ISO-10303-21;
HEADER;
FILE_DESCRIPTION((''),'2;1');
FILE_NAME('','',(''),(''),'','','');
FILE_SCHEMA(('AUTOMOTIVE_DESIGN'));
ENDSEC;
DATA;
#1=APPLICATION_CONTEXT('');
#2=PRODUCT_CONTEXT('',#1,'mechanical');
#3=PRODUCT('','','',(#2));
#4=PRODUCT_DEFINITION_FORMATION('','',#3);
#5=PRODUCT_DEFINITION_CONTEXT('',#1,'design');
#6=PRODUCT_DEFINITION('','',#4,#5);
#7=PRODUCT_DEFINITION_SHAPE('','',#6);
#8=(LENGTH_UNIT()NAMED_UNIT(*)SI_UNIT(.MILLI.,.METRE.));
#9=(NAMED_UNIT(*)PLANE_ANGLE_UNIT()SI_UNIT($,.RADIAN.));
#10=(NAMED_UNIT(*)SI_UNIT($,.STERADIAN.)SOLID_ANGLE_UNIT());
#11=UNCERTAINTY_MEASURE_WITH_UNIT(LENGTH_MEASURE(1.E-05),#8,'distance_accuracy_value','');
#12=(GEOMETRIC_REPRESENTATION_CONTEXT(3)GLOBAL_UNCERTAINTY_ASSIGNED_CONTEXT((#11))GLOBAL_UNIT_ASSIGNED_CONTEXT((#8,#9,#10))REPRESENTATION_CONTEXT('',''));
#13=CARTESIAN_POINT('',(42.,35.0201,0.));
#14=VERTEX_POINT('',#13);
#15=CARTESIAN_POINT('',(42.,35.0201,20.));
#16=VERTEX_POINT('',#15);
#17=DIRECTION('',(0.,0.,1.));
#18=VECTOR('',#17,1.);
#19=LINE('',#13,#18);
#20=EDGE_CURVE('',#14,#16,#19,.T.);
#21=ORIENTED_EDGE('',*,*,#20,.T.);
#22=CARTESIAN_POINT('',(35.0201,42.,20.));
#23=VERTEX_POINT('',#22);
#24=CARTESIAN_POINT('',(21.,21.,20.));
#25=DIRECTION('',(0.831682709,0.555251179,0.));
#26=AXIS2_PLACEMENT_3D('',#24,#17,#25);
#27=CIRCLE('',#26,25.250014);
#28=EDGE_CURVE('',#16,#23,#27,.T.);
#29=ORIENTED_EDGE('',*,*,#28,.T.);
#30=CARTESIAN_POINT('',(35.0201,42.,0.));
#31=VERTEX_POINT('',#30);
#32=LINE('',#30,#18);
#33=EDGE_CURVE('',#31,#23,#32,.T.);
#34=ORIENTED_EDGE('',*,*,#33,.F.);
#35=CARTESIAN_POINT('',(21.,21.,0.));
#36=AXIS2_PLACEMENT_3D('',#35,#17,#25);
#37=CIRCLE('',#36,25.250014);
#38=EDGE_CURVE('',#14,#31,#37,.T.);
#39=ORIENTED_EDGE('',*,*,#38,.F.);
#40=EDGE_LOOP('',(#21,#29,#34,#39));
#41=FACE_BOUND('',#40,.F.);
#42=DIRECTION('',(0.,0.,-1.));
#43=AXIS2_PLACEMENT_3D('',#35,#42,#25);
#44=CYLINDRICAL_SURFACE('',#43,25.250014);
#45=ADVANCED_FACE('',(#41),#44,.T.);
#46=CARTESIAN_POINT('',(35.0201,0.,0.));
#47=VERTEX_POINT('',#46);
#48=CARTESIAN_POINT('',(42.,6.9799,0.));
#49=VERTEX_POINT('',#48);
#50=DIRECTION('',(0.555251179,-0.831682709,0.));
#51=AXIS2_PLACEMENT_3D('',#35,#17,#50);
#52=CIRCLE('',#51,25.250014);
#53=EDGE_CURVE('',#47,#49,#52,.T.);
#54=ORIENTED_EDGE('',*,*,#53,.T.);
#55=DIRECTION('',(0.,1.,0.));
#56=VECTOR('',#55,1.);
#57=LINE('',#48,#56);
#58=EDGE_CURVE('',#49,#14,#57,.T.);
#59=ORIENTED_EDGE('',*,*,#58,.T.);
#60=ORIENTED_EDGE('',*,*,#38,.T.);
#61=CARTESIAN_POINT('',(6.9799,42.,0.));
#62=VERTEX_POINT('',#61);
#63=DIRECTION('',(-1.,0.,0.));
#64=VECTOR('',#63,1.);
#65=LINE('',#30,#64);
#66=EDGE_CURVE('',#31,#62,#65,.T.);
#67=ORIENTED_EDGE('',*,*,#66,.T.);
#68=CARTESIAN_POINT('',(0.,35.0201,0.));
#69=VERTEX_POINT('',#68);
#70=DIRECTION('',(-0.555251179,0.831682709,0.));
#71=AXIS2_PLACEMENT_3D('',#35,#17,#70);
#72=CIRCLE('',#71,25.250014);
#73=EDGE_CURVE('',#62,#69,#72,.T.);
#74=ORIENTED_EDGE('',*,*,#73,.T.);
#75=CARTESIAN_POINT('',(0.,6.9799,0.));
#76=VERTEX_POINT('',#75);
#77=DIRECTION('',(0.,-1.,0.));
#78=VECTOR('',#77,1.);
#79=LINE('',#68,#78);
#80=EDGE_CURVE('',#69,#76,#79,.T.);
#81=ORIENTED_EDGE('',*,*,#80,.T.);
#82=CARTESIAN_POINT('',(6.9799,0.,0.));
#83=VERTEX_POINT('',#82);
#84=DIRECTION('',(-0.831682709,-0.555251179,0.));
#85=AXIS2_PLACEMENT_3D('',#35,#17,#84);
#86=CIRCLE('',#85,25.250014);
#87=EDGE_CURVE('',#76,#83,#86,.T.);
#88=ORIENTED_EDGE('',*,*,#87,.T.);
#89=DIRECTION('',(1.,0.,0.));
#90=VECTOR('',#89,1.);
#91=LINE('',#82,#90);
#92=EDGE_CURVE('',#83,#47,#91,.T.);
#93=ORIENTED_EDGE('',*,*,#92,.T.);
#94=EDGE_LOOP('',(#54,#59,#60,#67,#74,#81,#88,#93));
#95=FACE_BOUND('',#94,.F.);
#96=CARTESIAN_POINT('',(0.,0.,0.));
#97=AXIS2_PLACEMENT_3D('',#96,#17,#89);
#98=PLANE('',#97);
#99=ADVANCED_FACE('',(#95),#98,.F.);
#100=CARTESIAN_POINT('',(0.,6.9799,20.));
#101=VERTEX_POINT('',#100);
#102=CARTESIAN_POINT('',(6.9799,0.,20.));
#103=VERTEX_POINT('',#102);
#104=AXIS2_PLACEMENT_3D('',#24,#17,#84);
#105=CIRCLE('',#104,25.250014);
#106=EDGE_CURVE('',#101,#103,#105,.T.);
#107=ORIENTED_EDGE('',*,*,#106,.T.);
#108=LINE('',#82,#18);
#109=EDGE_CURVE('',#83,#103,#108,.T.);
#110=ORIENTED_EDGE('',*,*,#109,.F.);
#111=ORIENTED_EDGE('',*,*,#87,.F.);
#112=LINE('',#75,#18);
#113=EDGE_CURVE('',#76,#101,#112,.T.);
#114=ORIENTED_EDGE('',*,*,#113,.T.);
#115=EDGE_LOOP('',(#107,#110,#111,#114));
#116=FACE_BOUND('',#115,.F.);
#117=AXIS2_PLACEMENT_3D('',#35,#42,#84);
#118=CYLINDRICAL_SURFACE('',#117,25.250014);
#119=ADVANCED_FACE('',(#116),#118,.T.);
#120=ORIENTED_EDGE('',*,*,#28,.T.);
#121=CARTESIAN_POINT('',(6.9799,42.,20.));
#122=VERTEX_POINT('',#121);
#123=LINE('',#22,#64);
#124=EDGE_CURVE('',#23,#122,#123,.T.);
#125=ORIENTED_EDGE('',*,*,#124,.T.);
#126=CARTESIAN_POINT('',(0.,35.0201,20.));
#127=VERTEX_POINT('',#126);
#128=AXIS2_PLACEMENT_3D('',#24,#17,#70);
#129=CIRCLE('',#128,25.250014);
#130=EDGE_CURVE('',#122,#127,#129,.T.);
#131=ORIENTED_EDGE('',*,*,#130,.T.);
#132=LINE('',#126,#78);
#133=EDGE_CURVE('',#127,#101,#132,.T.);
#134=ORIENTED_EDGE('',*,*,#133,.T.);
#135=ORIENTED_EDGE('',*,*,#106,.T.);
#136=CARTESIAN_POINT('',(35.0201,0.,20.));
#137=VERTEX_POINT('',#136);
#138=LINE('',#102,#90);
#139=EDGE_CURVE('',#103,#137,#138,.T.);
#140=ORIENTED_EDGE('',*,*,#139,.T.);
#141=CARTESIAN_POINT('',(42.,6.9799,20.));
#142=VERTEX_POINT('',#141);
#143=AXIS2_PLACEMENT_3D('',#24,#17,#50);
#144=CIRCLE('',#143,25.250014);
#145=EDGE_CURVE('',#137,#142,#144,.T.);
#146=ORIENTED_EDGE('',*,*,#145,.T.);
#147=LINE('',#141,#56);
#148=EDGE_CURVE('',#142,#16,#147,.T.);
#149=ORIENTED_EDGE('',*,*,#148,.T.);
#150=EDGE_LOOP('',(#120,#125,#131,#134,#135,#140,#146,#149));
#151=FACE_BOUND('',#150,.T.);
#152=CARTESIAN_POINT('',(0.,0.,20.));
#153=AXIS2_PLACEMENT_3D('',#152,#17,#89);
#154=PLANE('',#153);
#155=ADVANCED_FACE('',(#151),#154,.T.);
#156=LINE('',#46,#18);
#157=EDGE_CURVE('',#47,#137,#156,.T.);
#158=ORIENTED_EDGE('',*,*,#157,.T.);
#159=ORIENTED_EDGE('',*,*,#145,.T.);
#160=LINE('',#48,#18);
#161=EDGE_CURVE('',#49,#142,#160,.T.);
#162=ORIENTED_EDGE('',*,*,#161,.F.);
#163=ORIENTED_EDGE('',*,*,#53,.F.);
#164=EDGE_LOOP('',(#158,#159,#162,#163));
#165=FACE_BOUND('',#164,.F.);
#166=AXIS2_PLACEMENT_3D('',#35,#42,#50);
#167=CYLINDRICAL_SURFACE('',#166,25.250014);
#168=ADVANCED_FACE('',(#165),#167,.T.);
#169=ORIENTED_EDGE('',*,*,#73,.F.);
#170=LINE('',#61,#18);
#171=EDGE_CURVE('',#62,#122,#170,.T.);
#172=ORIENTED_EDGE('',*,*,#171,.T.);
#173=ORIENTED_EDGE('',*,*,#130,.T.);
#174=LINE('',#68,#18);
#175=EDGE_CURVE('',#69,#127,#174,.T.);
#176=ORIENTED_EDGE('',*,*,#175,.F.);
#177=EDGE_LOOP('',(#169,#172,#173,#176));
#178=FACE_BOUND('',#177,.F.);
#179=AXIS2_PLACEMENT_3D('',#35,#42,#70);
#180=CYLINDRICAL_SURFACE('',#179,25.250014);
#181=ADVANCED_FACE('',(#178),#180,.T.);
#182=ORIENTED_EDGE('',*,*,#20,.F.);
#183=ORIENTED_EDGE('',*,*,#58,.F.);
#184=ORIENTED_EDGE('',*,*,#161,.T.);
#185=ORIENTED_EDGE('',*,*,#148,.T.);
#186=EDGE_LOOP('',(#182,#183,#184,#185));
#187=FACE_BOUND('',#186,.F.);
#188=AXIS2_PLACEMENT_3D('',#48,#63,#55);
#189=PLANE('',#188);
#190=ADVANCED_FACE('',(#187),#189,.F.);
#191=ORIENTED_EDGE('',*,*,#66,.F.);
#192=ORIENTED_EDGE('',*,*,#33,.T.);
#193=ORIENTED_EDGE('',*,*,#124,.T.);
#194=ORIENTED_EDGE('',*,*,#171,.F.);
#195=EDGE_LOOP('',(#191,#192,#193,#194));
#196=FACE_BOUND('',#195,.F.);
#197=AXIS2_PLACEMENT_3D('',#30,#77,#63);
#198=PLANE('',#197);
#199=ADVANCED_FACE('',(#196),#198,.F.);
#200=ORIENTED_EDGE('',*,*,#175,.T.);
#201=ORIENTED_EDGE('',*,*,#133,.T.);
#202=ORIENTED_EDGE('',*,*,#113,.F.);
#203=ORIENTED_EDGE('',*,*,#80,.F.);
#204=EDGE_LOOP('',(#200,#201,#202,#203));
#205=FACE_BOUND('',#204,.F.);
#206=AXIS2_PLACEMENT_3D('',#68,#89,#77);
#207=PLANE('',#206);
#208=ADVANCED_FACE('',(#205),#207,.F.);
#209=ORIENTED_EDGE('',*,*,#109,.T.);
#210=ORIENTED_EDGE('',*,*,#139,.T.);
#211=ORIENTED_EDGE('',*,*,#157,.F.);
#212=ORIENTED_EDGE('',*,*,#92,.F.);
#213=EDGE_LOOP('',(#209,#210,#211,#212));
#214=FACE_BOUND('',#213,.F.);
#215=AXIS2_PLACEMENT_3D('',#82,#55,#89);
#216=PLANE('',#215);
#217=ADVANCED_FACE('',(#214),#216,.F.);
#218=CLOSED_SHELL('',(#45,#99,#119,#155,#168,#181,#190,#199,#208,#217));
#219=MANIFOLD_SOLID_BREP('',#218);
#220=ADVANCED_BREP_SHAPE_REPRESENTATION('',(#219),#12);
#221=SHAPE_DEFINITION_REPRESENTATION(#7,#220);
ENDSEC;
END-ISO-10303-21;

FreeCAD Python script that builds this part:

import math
import FreeCAD as App
import Part
import Sketcher

V = App.Vector
Q = App.Units.Quantity

doc = App.newDocument("Part")
params = doc.addObject("Spreadsheet::Sheet", "Params")
for row, (alias, value) in enumerate([
    ("sketch1_radius", "25.25 mm"),
    ("pad1_length", "20 mm"),
], start=1):
    params.set(f"A{row}", alias)
    params.set(f"B{row}", "=" + value)
    params.setAlias(f"B{row}", alias)

body = doc.addObject("PartDesign::Body", "Body")

# Sketch on XY plane
sketch1 = body.newObject("Sketcher::SketchObject", "Sketch")
sketch1.AttachmentSupport = (doc.getObject("XY_Plane"), [""])
sketch1.MapMode = "FlatFace"
sketch1.addGeometry(Part.ArcOfCircle(Part.Circle(V(21, 21, 0), V(0, 0, 1), 25.250014), math.radians(-146.271983), math.radians(-123.728017)), False)
sketch1.addGeometry(Part.LineSegment(V(6.9799, 0, 0), V(35.0201, 0, 0)), False)
sketch1.addGeometry(Part.ArcOfCircle(Part.Circle(V(21, 21, 0), V(0, 0, 1), 25.250014), math.radians(-56.271983), math.radians(-33.728017)), False)
sketch1.addGeometry(Part.LineSegment(V(42, 6.9799, 0), V(42, 35.0201, 0)), False)
sketch1.addGeometry(Part.ArcOfCircle(Part.Circle(V(21, 21, 0), V(0, 0, 1), 25.250014), math.radians(33.728017), math.radians(56.271983)), False)
sketch1.addGeometry(Part.LineSegment(V(35.0201, 42, 0), V(6.9799, 42, 0)), False)
sketch1.addGeometry(Part.ArcOfCircle(Part.Circle(V(21, 21, 0), V(0, 0, 1), 25.250014), math.radians(123.728017), math.radians(146.271983)), False)
sketch1.addGeometry(Part.LineSegment(V(0, 35.0201, 0), V(0, 6.9799, 0)), False)
sketch1.addConstraint(Sketcher.Constraint("Coincident", 0, 2, 1, 1))
sketch1.addConstraint(Sketcher.Constraint("Coincident", 1, 2, 2, 1))
sketch1.addConstraint(Sketcher.Constraint("Coincident", 2, 2, 3, 1))
sketch1.addConstraint(Sketcher.Constraint("Coincident", 3, 2, 4, 1))
sketch1.addConstraint(Sketcher.Constraint("Coincident", 4, 2, 5, 1))
sketch1.addConstraint(Sketcher.Constraint("Coincident", 5, 2, 6, 1))
sketch1.addConstraint(Sketcher.Constraint("Coincident", 6, 2, 7, 1))
sketch1.addConstraint(Sketcher.Constraint("Coincident", 7, 2, 0, 1))
sketch1.addConstraint(Sketcher.Constraint("Horizontal", 1))
sketch1.addConstraint(Sketcher.Constraint("Vertical", 3))
sketch1.addConstraint(Sketcher.Constraint("Horizontal", 5))
sketch1.addConstraint(Sketcher.Constraint("Vertical", 7))
sketch1.addConstraint(Sketcher.Constraint("Coincident", 2, 3, 0, 3))
sketch1.addConstraint(Sketcher.Constraint("Coincident", 4, 3, 0, 3))
sketch1.addConstraint(Sketcher.Constraint("Coincident", 6, 3, 0, 3))
sketch1.addConstraint(Sketcher.Constraint("Equal", 0, 2))
sketch1.addConstraint(Sketcher.Constraint("Equal", 2, 4))
sketch1.addConstraint(Sketcher.Constraint("Equal", 4, 6))
sketch1.addConstraint(Sketcher.Constraint("PointOnObject", 0, 2, -1))
sketch1.addConstraint(Sketcher.Constraint("PointOnObject", 6, 2, -2))
sketch1.addConstraint(Sketcher.Constraint("Horizontal", 3, 2, 6, 2))
sketch1.addConstraint(Sketcher.Constraint("Vertical", 1, 2, 4, 2))
sketch1.addConstraint(Sketcher.Constraint("Equal", 5, 3))
sketch1.addConstraint(Sketcher.Constraint("DistanceX", -1, 1, 2, 2, Q("42 mm")))
sketch1.addConstraint(Sketcher.Constraint("Radius", 0, Q("25.25 mm")))
sketch1.setExpression("Constraints[24]", "Params.sketch1_radius")
pad1 = body.newObject("PartDesign::Pad", "Pad")
pad1.Profile = sketch1
pad1.setExpression("Length", "Params.pad1_length")

doc.recompute()
